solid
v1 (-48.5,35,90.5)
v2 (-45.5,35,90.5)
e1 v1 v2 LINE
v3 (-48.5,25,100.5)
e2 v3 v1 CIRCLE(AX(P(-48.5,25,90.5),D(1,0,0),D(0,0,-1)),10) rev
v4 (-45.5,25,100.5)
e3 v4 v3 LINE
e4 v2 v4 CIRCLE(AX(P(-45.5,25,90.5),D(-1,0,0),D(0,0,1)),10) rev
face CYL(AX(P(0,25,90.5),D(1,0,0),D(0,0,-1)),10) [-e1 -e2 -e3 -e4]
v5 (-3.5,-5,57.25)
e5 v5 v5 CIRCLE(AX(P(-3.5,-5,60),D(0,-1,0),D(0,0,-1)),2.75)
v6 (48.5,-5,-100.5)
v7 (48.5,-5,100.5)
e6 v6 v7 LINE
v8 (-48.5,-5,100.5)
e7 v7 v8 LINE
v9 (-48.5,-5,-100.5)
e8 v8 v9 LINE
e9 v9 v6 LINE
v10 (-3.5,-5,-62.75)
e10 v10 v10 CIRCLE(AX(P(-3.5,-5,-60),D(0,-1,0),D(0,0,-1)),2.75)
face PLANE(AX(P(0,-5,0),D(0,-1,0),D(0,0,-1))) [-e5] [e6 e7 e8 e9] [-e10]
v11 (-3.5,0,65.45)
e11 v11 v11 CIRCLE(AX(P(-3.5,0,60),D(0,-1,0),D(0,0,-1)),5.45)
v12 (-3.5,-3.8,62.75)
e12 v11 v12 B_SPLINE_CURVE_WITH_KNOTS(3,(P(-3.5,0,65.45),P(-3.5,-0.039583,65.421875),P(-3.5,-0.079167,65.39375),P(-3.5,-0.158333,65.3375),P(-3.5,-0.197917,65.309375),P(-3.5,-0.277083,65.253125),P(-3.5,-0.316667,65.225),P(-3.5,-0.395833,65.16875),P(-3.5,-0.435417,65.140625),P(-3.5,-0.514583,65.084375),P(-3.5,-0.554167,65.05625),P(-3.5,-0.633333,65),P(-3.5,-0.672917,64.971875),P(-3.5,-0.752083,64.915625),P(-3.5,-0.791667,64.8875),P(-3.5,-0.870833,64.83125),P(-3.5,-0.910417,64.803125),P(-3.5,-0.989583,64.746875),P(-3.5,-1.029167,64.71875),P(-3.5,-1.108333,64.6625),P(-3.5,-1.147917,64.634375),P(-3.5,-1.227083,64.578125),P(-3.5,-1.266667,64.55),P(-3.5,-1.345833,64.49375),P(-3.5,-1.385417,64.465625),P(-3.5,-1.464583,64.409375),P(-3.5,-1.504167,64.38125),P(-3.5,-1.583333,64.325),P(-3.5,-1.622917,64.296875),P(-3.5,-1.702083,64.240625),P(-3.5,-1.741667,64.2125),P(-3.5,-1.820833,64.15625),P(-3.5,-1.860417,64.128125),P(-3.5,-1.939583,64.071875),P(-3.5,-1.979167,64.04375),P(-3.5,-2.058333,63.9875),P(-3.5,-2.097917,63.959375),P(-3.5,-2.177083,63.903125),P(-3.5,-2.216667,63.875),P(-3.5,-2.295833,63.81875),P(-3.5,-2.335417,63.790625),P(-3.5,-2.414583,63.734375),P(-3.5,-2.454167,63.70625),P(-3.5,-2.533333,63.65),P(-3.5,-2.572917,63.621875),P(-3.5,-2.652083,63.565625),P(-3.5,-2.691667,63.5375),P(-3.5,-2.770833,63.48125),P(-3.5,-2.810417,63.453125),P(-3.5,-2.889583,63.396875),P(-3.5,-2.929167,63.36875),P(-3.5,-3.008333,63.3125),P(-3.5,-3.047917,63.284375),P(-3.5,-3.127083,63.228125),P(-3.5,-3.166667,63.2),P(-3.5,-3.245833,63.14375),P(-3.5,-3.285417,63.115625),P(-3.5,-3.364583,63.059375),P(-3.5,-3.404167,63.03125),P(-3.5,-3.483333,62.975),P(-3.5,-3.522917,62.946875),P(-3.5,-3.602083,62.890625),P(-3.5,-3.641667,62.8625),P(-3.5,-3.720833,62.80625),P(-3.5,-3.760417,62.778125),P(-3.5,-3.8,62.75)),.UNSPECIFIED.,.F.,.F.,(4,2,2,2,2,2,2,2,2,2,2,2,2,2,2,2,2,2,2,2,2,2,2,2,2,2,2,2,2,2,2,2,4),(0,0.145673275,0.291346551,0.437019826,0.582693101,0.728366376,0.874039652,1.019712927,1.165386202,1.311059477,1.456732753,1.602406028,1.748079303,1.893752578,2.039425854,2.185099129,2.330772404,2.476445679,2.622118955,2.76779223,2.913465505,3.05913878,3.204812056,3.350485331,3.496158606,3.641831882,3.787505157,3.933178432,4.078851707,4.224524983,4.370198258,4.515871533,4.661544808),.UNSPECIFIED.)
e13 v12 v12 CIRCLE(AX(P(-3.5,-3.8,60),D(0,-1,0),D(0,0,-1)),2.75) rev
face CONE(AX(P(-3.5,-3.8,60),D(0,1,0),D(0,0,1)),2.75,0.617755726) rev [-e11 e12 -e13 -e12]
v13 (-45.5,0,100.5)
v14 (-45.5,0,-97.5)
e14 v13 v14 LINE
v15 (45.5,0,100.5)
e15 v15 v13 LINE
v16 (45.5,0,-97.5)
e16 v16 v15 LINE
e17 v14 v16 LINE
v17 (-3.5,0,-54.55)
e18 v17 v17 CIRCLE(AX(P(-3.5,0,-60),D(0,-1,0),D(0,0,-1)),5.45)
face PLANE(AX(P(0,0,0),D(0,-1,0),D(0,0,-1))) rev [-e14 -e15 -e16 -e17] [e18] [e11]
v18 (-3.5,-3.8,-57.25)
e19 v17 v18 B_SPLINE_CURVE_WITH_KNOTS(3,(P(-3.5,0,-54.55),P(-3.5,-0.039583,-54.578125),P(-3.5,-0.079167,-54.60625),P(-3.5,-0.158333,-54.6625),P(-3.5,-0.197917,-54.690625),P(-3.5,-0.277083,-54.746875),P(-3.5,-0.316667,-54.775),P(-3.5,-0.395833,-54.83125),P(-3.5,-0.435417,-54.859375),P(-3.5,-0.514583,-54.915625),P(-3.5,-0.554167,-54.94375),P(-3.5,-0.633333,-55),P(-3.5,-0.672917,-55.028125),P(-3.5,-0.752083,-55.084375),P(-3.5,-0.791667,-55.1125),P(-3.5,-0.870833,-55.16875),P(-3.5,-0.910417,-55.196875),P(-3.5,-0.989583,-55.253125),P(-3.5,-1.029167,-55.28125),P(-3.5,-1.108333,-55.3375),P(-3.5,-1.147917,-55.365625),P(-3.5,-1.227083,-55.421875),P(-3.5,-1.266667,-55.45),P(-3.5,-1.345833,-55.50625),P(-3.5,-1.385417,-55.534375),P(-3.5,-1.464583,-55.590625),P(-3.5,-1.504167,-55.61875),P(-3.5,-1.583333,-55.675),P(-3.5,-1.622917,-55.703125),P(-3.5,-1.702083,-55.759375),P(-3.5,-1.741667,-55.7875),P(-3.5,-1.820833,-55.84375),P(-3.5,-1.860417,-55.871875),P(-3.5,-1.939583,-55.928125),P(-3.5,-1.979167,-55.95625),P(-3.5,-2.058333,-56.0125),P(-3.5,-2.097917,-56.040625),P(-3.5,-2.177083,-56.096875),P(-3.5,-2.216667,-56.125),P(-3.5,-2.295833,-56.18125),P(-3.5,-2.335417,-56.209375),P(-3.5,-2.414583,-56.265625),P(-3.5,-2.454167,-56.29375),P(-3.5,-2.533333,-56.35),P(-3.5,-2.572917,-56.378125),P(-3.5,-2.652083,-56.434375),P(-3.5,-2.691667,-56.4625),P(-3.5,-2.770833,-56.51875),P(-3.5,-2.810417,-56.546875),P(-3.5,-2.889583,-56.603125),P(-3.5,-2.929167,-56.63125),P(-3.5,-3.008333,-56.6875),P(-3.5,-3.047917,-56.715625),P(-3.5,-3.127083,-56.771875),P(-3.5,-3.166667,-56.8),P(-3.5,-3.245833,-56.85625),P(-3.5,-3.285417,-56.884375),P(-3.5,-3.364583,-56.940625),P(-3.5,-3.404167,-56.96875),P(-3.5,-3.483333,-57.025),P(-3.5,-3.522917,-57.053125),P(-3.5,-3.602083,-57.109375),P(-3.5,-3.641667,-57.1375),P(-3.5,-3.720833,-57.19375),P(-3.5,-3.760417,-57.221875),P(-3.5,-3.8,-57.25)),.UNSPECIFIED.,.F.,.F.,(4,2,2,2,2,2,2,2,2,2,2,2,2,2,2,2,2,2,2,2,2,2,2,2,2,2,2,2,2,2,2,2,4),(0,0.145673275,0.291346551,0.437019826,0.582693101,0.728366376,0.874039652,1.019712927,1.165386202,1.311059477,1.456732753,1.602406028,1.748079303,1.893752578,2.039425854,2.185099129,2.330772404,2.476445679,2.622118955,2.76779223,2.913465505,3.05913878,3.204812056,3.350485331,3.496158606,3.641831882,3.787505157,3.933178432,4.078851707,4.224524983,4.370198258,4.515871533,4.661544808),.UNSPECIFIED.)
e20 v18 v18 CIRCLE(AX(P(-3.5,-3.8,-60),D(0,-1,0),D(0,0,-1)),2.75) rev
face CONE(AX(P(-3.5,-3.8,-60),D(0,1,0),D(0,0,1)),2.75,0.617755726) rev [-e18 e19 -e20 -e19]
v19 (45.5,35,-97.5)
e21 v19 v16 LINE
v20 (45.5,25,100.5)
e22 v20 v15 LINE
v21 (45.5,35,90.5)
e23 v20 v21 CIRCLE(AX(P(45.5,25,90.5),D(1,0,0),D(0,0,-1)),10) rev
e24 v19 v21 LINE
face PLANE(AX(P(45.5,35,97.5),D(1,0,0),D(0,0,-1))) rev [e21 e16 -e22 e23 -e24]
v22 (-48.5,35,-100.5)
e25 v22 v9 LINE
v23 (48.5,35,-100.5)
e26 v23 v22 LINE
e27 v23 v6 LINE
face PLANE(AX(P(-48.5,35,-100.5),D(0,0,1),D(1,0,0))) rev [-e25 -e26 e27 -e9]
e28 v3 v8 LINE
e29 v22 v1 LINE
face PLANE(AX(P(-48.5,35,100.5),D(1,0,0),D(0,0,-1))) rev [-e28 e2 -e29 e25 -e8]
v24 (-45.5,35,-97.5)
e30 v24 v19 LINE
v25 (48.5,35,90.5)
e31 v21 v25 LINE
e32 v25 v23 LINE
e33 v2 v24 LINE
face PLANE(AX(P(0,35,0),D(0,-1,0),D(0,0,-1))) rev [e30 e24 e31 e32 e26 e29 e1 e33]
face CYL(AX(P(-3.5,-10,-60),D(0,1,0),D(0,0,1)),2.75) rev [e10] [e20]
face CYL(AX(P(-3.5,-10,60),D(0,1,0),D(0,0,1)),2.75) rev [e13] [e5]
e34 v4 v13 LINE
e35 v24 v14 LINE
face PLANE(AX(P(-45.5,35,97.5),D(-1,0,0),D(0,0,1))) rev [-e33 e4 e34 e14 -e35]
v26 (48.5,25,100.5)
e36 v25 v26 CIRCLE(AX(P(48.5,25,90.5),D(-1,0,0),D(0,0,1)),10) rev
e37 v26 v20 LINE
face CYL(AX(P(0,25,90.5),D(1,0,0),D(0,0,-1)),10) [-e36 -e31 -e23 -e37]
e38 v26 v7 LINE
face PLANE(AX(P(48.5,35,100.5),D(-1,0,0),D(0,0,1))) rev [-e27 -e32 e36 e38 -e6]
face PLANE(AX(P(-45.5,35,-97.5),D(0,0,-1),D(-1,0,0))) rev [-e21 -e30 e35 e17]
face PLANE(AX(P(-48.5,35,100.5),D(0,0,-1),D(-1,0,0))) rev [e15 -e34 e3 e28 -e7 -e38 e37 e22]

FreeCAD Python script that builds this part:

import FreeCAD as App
import Part
import Sketcher


def edges_at(feature, points):
    """Names of the edges that pass closest to the given points."""
    edges = feature.Shape.Edges
    near = lambda p: min(range(len(edges)), key=lambda i: edges[i].distToShape(Part.Vertex(*p))[0])
    return sorted({f"Edge{near(p) + 1}" for p in points})

doc = App.newDocument("Part")
body = doc.addObject("PartDesign::Body", "Body")

# Sketch on XZ plane
sketch1 = body.newObject("Sketcher::SketchObject", "Sketch")
sketch1.AttachmentSupport = (doc.getObject("XZ_Plane"), [""])
sketch1.MapMode = "FlatFace"
sketch1.addGeometry([
    Part.LineSegment(App.Vector(-45.5, 100.5, 0), App.Vector(-45.5, -97.5, 0)),  # 0
    Part.LineSegment(App.Vector(-45.5, -97.5, 0), App.Vector(45.5, -97.5, 0)),  # 1
    Part.LineSegment(App.Vector(45.5, -97.5, 0), App.Vector(45.5, 100.5, 0)),  # 2
    Part.LineSegment(App.Vector(45.5, 100.5, 0), App.Vector(48.5, 100.5, 0)),  # 3
    Part.LineSegment(App.Vector(48.5, 100.5, 0), App.Vector(48.5, -100.5, 0)),  # 4
    Part.LineSegment(App.Vector(48.5, -100.5, 0), App.Vector(-48.5, -100.5, 0)),  # 5
    Part.LineSegment(App.Vector(-48.5, -100.5, 0), App.Vector(-48.5, 100.5, 0)),  # 6
    Part.LineSegment(App.Vector(-48.5, 100.5, 0), App.Vector(-45.5, 100.5, 0)),  # 7
], False)
sketch1.addConstraint([
    Sketcher.Constraint("Coincident", 0, 2, 1, 1),
    Sketcher.Constraint("Coincident", 1, 2, 2, 1),
    Sketcher.Constraint("Coincident", 2, 2, 3, 1),
    Sketcher.Constraint("Coincident", 3, 2, 4, 1),
    Sketcher.Constraint("Coincident", 4, 2, 5, 1),
    Sketcher.Constraint("Coincident", 5, 2, 6, 1),
    Sketcher.Constraint("Coincident", 6, 2, 7, 1),
    Sketcher.Constraint("Coincident", 7, 2, 0, 1),
    Sketcher.Constraint("Vertical", 0),
    Sketcher.Constraint("Horizontal", 1),
    Sketcher.Constraint("Vertical", 2),
    Sketcher.Constraint("Horizontal", 3),
    Sketcher.Constraint("Vertical", 4),
    Sketcher.Constraint("Horizontal", 5),
    Sketcher.Constraint("Vertical", 6),
    Sketcher.Constraint("Horizontal", 7),
    Sketcher.Constraint("Symmetric", 3, 2, 5, 2, -1, 1),
    Sketcher.Constraint("Symmetric", 2, 2, 7, 2, -2),
    Sketcher.Constraint("DistanceX", 1, 1, 1, 2, 91.0),
    Sketcher.Constraint("DistanceX", 3, 1, 3, 2, 3.0),
    Sketcher.Constraint("DistanceY", 0, 2, 0, 1, 198.0),
    Sketcher.Constraint("DistanceY", 4, 2, 4, 1, 201.0),
])
pad1 = body.newObject("PartDesign::Pad", "Pad")
pad1.Profile = sketch1
pad1.Length = 35
pad1.Reversed = True

# Sketch on XZ plane
sketch2 = body.newObject("Sketcher::SketchObject", "Sketch001")
sketch2.AttachmentSupport = (doc.getObject("XZ_Plane"), [""])
sketch2.MapMode = "FlatFace"
sketch2.addGeometry([
    Part.LineSegment(App.Vector(-48.5, 100.5, 0), App.Vector(-48.5, -100.5, 0)),
    Part.LineSegment(App.Vector(-48.5, -100.5, 0), App.Vector(48.5, -100.5, 0)),
    Part.LineSegment(App.Vector(48.5, -100.5, 0), App.Vector(48.5, 100.5, 0)),
    Part.LineSegment(App.Vector(48.5, 100.5, 0), App.Vector(-48.5, 100.5, 0)),
], False)
sketch2.addConstraint([
    Sketcher.Constraint("Coincident", 0, 2, 1, 1),
    Sketcher.Constraint("Coincident", 1, 2, 2, 1),
    Sketcher.Constraint("Coincident", 2, 2, 3, 1),
    Sketcher.Constraint("Coincident", 3, 2, 0, 1),
    Sketcher.Constraint("Vertical", 0),
    Sketcher.Constraint("Horizontal", 1),
    Sketcher.Constraint("Vertical", 2),
    Sketcher.Constraint("Horizontal", 3),
    Sketcher.Constraint("Symmetric", 0, 2, 2, 2, -1, 1),
    Sketcher.Constraint("DistanceX", 1, 1, 1, 2, 97.0),
    Sketcher.Constraint("DistanceY", 0, 2, 0, 1, 201.0),
])
pad2 = body.newObject("PartDesign::Pad", "Pad001")
pad2.Profile = sketch2
pad2.Length = 5
doc.recompute()

fillet = body.newObject("PartDesign::Fillet", "Fillet")
fillet.Base = (pad2, edges_at(pad2, [(47, 35, 100.5), (-47, 35, 100.5)]))
fillet.Radius = 10

# Sketch on XZ plane
sketch3 = body.newObject("Sketcher::SketchObject", "Sketch002")
sketch3.AttachmentSupport = (doc.getObject("XZ_Plane"), [""])
sketch3.MapMode = "FlatFace"
sketch3.addGeometry([
    Part.Circle(App.Vector(-3.5, -60, 0), App.Vector(0, 0, 1), 2.75),
    Part.Circle(App.Vector(-3.5, 60, 0), App.Vector(0, 0, 1), 2.75),
], False)
sketch3.addConstraint([
    Sketcher.Constraint("Equal", 0, 1),
    Sketcher.Constraint("Symmetric", 0, 3, 1, 3, -1),
    Sketcher.Constraint("Diameter", 0, 5.5),
    Sketcher.Constraint("DistanceY", 0, 3, -1, 1, 60.0),
    Sketcher.Constraint("DistanceX", 0, 3, -1, 1, 3.5),
])
pocket1 = body.newObject("PartDesign::Pocket", "Pocket")
pocket1.Profile = sketch3
pocket1.Length = 10
pocket1.Reversed = True
doc.recompute()

chamfer = body.newObject("PartDesign::Chamfer", "Chamfer")
chamfer.Base = (pocket1, edges_at(pocket1, [(-3.5, 0, 57.25)]))
chamfer.ChamferType = "Two distances"
chamfer.Size = 2.7
chamfer.Size2 = 3.8
doc.recompute()

chamfer2 = body.newObject("PartDesign::Chamfer", "Chamfer001")
chamfer2.Base = (chamfer, edges_at(chamfer, [(-3.5, 0, -62.75)]))
chamfer2.ChamferType = "Two distances"
chamfer2.Size = 2.7
chamfer2.Size2 = 3.8

doc.recompute()
